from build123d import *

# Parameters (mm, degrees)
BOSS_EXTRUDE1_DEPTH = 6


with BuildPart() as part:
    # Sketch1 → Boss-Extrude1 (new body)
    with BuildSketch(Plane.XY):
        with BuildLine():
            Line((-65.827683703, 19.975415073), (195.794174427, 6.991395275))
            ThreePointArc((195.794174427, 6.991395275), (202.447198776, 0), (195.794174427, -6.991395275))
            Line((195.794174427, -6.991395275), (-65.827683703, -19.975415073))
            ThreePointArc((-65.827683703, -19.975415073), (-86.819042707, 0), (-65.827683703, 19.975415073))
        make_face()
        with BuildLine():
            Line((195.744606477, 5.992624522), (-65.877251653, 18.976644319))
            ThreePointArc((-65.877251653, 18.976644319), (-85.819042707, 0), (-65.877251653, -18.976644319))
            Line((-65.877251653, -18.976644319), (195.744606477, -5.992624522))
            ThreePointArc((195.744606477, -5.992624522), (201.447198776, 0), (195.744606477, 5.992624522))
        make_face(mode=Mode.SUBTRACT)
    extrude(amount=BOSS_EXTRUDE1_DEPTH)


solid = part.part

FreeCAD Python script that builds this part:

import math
import FreeCAD as App
import Part
import Sketcher

V = App.Vector

doc = App.newDocument("Part")
body = doc.addObject("PartDesign::Body", "Body")

# Sketch on XY plane
sketch1 = body.newObject("Sketcher::SketchObject", "Sketch")
sketch1.AttachmentSupport = (doc.getObject("XY_Plane"), [""])
sketch1.MapMode = "FlatFace"
sketch1.addGeometry([
    Part.LineSegment(V(195.794174, 6.991395, 0), V(-65.827684, 19.975415, 0)),  # 0
    Part.ArcOfCircle(Part.Circle(V(-66.819043, 0, 0), V(0, 0, 1), 20), math.radians(87.158801), math.radians(272.841199)),  # 1
    Part.LineSegment(V(-65.827684, -19.975415, 0), V(195.794174, -6.991395, 0)),  # 2
    Part.ArcOfCircle(Part.Circle(V(195.447199, 0, 0), V(0, 0, 1), 7), math.radians(-87.158801), math.radians(87.158801)),  # 3
    Part.ArcOfCircle(Part.Circle(V(195.447199, 0, 0), V(0, 0, 1), 6), math.radians(-87.158801), math.radians(87.158801)),  # 4
    Part.LineSegment(V(195.744606, -5.992625, 0), V(-65.877252, -18.976644, 0)),  # 5
    Part.ArcOfCircle(Part.Circle(V(-66.819043, 0, 0), V(0, 0, 1), 19), math.radians(87.158801), math.radians(272.841199)),  # 6
    Part.LineSegment(V(-65.877252, 18.976644, 0), V(195.744606, 5.992625, 0)),  # 7
], False)
sketch1.addConstraint([
    Sketcher.Constraint("Tangent", 0, 2, 1, 1),
    Sketcher.Constraint("Tangent", 1, 2, 2, 1),
    Sketcher.Constraint("Tangent", 2, 2, 3, 1),
    Sketcher.Constraint("Tangent", 3, 2, 0, 1),
    Sketcher.Constraint("Tangent", 4, 1, 5, 1),
    Sketcher.Constraint("Tangent", 5, 2, 6, 2),
    Sketcher.Constraint("Tangent", 6, 1, 7, 1),
    Sketcher.Constraint("Tangent", 7, 2, 4, 2),
    Sketcher.Constraint("Coincident", 4, 3, 3, 3),
    Sketcher.Constraint("Coincident", 6, 3, 1, 3),
    Sketcher.Constraint("Symmetric", 0, 2, 1, 2, -1),
    Sketcher.Constraint("Parallel", 2, 5),
    Sketcher.Constraint("Radius", 1, 20.0),
    Sketcher.Constraint("Radius", 3, 7.0),
    Sketcher.Constraint("Radius", 4, 6.0),
    Sketcher.Constraint("DistanceX", -1, 1, 3, 3, 195.447199),
    Sketcher.Constraint("Distance", 0, 261.943852),
])
pad1 = body.newObject("PartDesign::Pad", "Pad")
pad1.Profile = sketch1
pad1.Length = 6

doc.recompute()
